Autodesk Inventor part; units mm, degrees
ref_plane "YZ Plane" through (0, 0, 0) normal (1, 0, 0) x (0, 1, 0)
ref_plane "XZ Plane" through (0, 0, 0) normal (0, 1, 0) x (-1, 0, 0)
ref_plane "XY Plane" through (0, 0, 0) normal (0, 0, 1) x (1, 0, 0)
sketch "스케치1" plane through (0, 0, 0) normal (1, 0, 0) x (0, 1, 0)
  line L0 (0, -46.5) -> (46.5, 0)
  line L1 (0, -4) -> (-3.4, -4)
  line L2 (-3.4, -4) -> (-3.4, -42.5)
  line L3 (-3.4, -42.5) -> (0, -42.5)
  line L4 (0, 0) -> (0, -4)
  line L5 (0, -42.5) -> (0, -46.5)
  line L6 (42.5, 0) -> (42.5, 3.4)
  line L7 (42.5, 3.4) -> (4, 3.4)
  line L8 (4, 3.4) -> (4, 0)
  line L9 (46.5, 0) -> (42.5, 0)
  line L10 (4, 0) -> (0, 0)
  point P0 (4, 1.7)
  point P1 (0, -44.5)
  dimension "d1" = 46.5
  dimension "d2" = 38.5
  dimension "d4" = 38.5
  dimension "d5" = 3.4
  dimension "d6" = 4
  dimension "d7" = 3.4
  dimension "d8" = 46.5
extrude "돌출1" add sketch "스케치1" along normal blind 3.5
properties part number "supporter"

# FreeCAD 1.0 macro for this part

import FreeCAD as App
import Part
import Sketcher
Q = App.Units.Quantity


def add_polygon(sketch, points):
    """Adds a closed chain of lines whose ends are joined by coincident constraints."""
    first, n = sketch.GeometryCount, len(points)
    for a, b in zip(points, points[1:] + points[:1]):
        sketch.addGeometry(Part.LineSegment(App.Vector(*a, 0), App.Vector(*b, 0)), False)
    for i in range(n):
        sketch.addConstraint(Sketcher.Constraint("Coincident", first + i, 2, first + (i + 1) % n, 1))

doc = App.newDocument("Part")
body = doc.addObject("PartDesign::Body", "Body")

sketch1 = body.newObject("Sketcher::SketchObject", "Sketch")
sketch1.AttachmentSupport = (doc.getObject("YZ_Plane"), [""])
sketch1.MapMode = "FlatFace"
add_polygon(sketch1, [(0, -42.5), (0, -46.5), (46.5, 0), (42.5, 0), (42.5, 3.4), (4, 3.4), (4, 0), (0, 0), (0, -4), (-3.4, -4), (-3.4, -42.5)])
sketch1.addConstraint(Sketcher.Constraint("Vertical", 0))
sketch1.addConstraint(Sketcher.Constraint("Horizontal", 2))
sketch1.addConstraint(Sketcher.Constraint("Vertical", 3))
sketch1.addConstraint(Sketcher.Constraint("Horizontal", 4))
sketch1.addConstraint(Sketcher.Constraint("Vertical", 5))
sketch1.addConstraint(Sketcher.Constraint("Horizontal", 6))
sketch1.addConstraint(Sketcher.Constraint("Vertical", 7))
sketch1.addConstraint(Sketcher.Constraint("Horizontal", 8))
sketch1.addConstraint(Sketcher.Constraint("Vertical", 9))
sketch1.addConstraint(Sketcher.Constraint("Horizontal", 10))
sketch1.addConstraint(Sketcher.Constraint("Coincident", 6, 2, -1, 1))
sketch1.addConstraint(Sketcher.Constraint("PointOnObject", 0, 2, -2))
sketch1.addConstraint(Sketcher.Constraint("PointOnObject", 1, 2, -1))
sketch1.addConstraint(Sketcher.Constraint("Equal", 2, 6))
sketch1.addConstraint(Sketcher.Constraint("Equal", 6, 0))
sketch1.addConstraint(Sketcher.Constraint("Equal", 10, 3))
sketch1.addConstraint(Sketcher.Constraint("Equal", 0, 7))
sketch1.addConstraint(Sketcher.Constraint("Equal", 4, 9))
sketch1.addConstraint(Sketcher.Constraint("DistanceX", 2, 2, 2, 1, Q("4 mm")))
sketch1.addConstraint(Sketcher.Constraint("DistanceX", 4, 2, 4, 1, Q("38.5 mm")))
sketch1.addConstraint(Sketcher.Constraint("DistanceX", 8, 2, 8, 1, Q("3.4 mm")))
pad1 = body.newObject("PartDesign::Pad", "Pad")
pad1.Profile = sketch1
pad1.Length = 3.5

doc.recompute()
